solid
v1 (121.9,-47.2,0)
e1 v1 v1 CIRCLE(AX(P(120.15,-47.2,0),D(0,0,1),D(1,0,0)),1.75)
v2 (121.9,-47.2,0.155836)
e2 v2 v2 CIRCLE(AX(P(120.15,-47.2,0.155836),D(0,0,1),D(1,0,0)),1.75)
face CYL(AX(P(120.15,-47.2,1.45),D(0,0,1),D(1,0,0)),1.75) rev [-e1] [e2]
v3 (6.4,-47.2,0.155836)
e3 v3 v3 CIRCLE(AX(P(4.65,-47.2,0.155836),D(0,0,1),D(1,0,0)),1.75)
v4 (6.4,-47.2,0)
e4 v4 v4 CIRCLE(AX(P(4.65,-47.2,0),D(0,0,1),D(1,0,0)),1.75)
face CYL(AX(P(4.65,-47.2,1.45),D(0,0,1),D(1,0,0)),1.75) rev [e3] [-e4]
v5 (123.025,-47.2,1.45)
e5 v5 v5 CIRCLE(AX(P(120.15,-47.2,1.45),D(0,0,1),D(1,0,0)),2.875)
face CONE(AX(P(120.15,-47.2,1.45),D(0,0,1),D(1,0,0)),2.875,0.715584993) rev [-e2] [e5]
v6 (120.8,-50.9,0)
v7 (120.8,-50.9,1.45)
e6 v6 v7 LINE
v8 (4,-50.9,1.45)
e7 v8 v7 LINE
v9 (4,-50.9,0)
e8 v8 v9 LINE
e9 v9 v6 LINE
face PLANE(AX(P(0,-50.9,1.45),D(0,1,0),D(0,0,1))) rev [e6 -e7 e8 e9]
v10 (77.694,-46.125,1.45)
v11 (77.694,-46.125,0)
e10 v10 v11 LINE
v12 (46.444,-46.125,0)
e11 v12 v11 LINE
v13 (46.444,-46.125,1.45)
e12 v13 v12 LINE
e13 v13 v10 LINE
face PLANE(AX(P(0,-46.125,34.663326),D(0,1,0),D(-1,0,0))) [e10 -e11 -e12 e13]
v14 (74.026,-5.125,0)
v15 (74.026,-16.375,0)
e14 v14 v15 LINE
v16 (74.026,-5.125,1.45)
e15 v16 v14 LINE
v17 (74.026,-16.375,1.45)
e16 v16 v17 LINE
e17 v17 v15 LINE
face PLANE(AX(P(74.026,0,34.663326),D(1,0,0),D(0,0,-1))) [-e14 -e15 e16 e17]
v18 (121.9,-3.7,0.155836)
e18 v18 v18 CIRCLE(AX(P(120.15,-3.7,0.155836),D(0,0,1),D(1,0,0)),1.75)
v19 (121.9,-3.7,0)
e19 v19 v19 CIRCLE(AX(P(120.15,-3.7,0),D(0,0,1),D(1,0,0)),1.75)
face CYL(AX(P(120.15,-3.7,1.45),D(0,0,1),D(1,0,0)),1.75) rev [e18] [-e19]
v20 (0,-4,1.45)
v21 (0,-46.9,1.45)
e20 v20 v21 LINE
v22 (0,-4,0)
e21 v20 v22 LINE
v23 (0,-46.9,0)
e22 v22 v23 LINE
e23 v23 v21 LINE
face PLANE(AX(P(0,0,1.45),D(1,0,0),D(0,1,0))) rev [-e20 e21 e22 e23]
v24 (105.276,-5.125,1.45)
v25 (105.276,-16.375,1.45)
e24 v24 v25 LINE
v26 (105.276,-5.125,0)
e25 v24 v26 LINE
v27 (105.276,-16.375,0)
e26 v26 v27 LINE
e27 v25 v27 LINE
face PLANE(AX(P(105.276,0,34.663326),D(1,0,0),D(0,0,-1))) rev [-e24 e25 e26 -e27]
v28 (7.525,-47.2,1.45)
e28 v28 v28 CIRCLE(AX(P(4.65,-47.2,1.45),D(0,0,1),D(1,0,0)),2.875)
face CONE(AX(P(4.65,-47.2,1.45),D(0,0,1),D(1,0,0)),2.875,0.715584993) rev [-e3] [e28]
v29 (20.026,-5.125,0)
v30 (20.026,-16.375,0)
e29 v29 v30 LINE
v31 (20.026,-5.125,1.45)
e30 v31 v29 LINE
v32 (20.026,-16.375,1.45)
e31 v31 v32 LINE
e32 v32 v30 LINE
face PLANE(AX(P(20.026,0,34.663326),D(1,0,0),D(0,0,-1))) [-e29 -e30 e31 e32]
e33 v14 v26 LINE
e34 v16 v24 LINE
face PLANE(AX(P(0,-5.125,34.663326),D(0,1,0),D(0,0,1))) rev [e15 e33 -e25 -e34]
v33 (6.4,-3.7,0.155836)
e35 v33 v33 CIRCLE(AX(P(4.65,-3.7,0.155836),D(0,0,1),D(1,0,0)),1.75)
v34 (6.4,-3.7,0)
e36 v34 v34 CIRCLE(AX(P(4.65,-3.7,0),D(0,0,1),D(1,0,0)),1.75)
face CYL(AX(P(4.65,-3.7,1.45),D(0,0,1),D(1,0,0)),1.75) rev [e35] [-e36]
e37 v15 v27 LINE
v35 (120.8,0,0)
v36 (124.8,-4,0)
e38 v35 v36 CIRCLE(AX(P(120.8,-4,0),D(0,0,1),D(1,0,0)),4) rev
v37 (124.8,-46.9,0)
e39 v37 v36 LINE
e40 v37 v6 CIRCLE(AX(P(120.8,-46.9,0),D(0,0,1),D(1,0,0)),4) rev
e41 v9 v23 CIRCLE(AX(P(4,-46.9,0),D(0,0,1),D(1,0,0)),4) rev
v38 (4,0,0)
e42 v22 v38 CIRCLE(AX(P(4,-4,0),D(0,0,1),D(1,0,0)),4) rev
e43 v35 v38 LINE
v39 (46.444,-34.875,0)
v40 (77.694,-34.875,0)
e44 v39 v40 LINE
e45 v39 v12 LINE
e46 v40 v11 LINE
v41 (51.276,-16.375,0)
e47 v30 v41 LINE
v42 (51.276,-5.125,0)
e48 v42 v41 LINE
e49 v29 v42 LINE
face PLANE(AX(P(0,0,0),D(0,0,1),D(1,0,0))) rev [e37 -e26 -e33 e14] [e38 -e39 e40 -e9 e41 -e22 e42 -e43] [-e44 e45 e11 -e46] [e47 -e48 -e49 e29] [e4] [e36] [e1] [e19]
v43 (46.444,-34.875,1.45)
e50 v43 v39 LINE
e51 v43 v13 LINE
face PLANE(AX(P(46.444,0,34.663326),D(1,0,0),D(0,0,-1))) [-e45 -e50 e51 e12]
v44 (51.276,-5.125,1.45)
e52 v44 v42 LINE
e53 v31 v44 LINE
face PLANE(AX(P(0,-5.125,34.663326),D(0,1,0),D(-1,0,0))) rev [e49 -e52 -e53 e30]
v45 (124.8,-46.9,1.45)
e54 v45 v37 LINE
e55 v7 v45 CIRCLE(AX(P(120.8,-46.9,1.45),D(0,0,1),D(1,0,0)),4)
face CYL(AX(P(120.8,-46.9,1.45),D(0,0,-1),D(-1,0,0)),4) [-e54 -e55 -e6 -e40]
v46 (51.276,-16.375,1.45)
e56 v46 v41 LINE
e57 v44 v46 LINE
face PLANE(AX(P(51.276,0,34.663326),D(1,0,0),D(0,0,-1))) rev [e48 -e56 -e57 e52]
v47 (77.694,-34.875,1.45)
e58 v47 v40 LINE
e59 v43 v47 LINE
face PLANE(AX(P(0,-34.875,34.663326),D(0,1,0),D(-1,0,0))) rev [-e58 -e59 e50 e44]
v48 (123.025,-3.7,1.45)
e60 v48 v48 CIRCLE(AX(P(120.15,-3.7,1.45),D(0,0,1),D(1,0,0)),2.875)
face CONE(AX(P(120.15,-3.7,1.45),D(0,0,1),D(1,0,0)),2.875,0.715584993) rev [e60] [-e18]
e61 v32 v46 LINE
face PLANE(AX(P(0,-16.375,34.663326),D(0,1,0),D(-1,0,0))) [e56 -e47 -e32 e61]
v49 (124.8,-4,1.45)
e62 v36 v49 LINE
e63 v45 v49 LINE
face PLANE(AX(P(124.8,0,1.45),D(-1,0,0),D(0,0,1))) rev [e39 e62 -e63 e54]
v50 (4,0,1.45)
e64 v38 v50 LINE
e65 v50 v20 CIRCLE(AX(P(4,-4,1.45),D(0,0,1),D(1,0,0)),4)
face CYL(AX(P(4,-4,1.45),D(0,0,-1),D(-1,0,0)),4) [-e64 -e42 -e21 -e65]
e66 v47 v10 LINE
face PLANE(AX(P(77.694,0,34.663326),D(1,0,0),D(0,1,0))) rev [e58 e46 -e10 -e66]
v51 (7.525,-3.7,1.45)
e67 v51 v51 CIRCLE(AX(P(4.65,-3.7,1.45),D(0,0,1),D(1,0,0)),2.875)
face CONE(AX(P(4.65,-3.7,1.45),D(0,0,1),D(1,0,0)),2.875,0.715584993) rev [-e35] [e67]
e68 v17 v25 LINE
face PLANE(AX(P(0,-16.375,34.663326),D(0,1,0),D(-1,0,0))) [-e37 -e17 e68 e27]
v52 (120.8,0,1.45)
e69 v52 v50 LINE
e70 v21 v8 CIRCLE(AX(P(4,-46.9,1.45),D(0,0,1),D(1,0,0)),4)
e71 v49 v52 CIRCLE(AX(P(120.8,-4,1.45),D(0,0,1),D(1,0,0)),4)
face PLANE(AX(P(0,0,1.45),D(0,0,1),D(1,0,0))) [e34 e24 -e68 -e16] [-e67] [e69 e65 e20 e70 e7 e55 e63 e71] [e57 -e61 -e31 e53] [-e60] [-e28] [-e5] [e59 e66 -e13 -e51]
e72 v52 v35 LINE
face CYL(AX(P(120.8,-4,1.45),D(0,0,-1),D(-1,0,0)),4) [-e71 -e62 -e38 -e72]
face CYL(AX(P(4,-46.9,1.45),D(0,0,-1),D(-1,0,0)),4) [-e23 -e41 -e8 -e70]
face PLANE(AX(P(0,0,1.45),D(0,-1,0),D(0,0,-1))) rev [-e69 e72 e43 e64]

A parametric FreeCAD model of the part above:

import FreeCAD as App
import Part
import Sketcher
Q = App.Units.Quantity


def edges_at(feature, points):
    """Names of the edges that pass closest to the given points."""
    edges = feature.Shape.Edges
    near = lambda p: min(range(len(edges)), key=lambda i: edges[i].distToShape(Part.Vertex(*p))[0])
    return sorted({f"Edge{near(p) + 1}" for p in points})


def add_polygon(sketch, points):
    """Adds a closed chain of lines whose ends are joined by coincident constraints."""
    first, n = sketch.GeometryCount, len(points)
    for a, b in zip(points, points[1:] + points[:1]):
        sketch.addGeometry(Part.LineSegment(App.Vector(*a, 0), App.Vector(*b, 0)), False)
    for i in range(n):
        sketch.addConstraint(Sketcher.Constraint("Coincident", first + i, 2, first + (i + 1) % n, 1))

doc = App.newDocument("Part")
body = doc.addObject("PartDesign::Body", "Body")

sketch1 = body.newObject("Sketcher::SketchObject", "Sketch")
sketch1.AttachmentSupport = (doc.getObject("XY_Plane"), [""])
sketch1.MapMode = "FlatFace"
add_polygon(sketch1, [(0, 0), (0, -51), (125, -51), (125, 0)])
sketch1.addConstraint([
    Sketcher.Constraint("Vertical", 0),
    Sketcher.Constraint("Horizontal", 1),
    Sketcher.Constraint("Vertical", 2),
    Sketcher.Constraint("Horizontal", 3),
    Sketcher.Constraint("Coincident", 3, 2, -1, 1),
    Sketcher.Constraint("DistanceX", 1, 1, 1, 2, 124.8),
    Sketcher.Constraint("DistanceY", 0, 2, 0, 1, 50.9),
])
pad1 = body.newObject("PartDesign::Pad", "Pad")
pad1.Profile = sketch1
pad1.Length = 1.45

sketch2 = body.newObject("Sketcher::SketchObject", "Sketch001")
sketch2.AttachmentSupport = (doc.getObject("YZ_Plane"), [""])
sketch2.MapMode = "FlatFace"
sketch2.AttachmentOffset = App.Placement(App.Vector(0, 0, 4.65), App.Rotation())
add_polygon(sketch2, [(-3.7, 0), (-3.7, 1.45), (-6.58, 1.45), (-5.45, 0.16), (-5.45, 0)])
sketch2.addGeometry(Part.LineSegment(App.Vector(-3.7, 1.45, 0), App.Vector(-3.7, 0, 0)), True)
sketch2.addConstraint([
    Sketcher.Constraint("Vertical", 0),
    Sketcher.Constraint("Horizontal", 1),
    Sketcher.Constraint("Vertical", 3),
    Sketcher.Constraint("Horizontal", 4),
    Sketcher.Constraint("Vertical", 5),
    Sketcher.Constraint("Coincident", 5, 1, 0, 2),
    Sketcher.Constraint("PointOnObject", 3, 2, -1),
    Sketcher.Constraint("PointOnObject", 5, 2, -1),
    Sketcher.Constraint("Angle", 2, Q("-49 deg")),
    Sketcher.Constraint("DistanceX", 4, 1, 4, 2, 1.75),
    Sketcher.Constraint("DistanceY", 0, 1, 0, 2, 1.45),
    Sketcher.Constraint("DistanceX", 0, 2, -1, 1, 3.7),
    Sketcher.Constraint("DistanceX", 1, 2, 1, 1, 2.875),
])
groove = body.newObject("PartDesign::Groove", "Groove")
groove.Profile = sketch2
groove.ReferenceAxis = (sketch2, ["Axis0"])
groove.Angle = 360
doc.recompute()

linearpattern = body.newObject("PartDesign::LinearPattern", "LinearPattern")
linearpattern.Originals = [groove]
linearpattern.Direction = (doc.getObject("X_Axis"), [""])
linearpattern.Mode = "offset"
linearpattern.Offset = 115.5
linearpattern.Occurrences = 2
body.Tip = linearpattern
doc.recompute()

datumline = body.newObject("PartDesign::Line", "DatumLine")
datumline.Placement = App.Placement(App.Vector(0, 0, 0), App.Rotation(App.Vector(0, 0, 1), App.Vector(0.935828766, -0.35245499, 0)))
linearpattern2 = body.newObject("PartDesign::LinearPattern", "LinearPattern001")
linearpattern2.Originals = [groove]
linearpattern2.Direction = (datumline, [""])
linearpattern2.Mode = "offset"
linearpattern2.Offset = 123.420015
linearpattern2.Occurrences = 2
body.Tip = linearpattern2
doc.recompute()

linearpattern3 = body.newObject("PartDesign::LinearPattern", "LinearPattern002")
linearpattern3.Originals = [groove]
linearpattern3.Direction = (doc.getObject("Y_Axis"), [""])
linearpattern3.Mode = "offset"
linearpattern3.Offset = 43.5
linearpattern3.Occurrences = 2
linearpattern3.Reversed = True
body.Tip = linearpattern3
doc.recompute()

fillet = body.newObject("PartDesign::Fillet", "Fillet")
fillet.Base = (linearpattern3, edges_at(linearpattern3, [
    (0, 0, 0.725),
    (124.8, 0, 0.725),
    (124.8, -50.9, 0.725),
    (0, -50.9, 0.725),
]))
fillet.Radius = 4

sketch3 = body.newObject("Sketcher::SketchObject", "Sketch002")
sketch3.AttachmentSupport = (doc.getObject("XY_Plane"), [""])
sketch3.MapMode = "FlatFace"
add_polygon(sketch3, [(20, -5), (20, -16), (51, -16), (51, -5)])
add_polygon(sketch3, [(74, -5), (74, -16), (105, -16), (105, -5)])
add_polygon(sketch3, [(46, -35), (46, -46), (78, -46), (78, -35)])
sketch3.addConstraint([
    Sketcher.Constraint("Vertical", 0),
    Sketcher.Constraint("Horizontal", 1),
    Sketcher.Constraint("Vertical", 2),
    Sketcher.Constraint("Horizontal", 3),
    Sketcher.Constraint("Vertical", 4),
    Sketcher.Constraint("Horizontal", 5),
    Sketcher.Constraint("Vertical", 6),
    Sketcher.Constraint("Horizontal", 7),
    Sketcher.Constraint("Vertical", 8),
    Sketcher.Constraint("Horizontal", 9),
    Sketcher.Constraint("Vertical", 10),
    Sketcher.Constraint("Horizontal", 11),
    Sketcher.Constraint("Horizontal", 1, 2, 4, 2),
    Sketcher.Constraint("Horizontal", 3, 2, 6, 2),
    Sketcher.Constraint("Equal", 3, 5),
    Sketcher.Constraint("Equal", 7, 9),
    Sketcher.Constraint("Equal", 6, 8),
    Sketcher.Constraint("DistanceX", 0, 2, 4, 2, 54.0),
    Sketcher.Constraint("DistanceY", 8, 2, 2, 2, 41.0),
    Sketcher.Constraint("DistanceX", 1, 1, 1, 2, 31.25),
    Sketcher.Constraint("DistanceY", 0, 2, 0, 1, 11.25),
    Sketcher.Constraint("DistanceX", -1, 1, 0, 2, 20.026),
    Sketcher.Constraint("DistanceY", 0, 2, -1, 1, 16.375),
    Sketcher.Constraint("DistanceX", -1, 1, 8, 2, 46.444),
])
pocket1 = body.newObject("PartDesign::Pocket", "Pocket")
pocket1.Profile = sketch3
pocket1.Length = 1.45
pocket1.Reversed = True

doc.recompute()
